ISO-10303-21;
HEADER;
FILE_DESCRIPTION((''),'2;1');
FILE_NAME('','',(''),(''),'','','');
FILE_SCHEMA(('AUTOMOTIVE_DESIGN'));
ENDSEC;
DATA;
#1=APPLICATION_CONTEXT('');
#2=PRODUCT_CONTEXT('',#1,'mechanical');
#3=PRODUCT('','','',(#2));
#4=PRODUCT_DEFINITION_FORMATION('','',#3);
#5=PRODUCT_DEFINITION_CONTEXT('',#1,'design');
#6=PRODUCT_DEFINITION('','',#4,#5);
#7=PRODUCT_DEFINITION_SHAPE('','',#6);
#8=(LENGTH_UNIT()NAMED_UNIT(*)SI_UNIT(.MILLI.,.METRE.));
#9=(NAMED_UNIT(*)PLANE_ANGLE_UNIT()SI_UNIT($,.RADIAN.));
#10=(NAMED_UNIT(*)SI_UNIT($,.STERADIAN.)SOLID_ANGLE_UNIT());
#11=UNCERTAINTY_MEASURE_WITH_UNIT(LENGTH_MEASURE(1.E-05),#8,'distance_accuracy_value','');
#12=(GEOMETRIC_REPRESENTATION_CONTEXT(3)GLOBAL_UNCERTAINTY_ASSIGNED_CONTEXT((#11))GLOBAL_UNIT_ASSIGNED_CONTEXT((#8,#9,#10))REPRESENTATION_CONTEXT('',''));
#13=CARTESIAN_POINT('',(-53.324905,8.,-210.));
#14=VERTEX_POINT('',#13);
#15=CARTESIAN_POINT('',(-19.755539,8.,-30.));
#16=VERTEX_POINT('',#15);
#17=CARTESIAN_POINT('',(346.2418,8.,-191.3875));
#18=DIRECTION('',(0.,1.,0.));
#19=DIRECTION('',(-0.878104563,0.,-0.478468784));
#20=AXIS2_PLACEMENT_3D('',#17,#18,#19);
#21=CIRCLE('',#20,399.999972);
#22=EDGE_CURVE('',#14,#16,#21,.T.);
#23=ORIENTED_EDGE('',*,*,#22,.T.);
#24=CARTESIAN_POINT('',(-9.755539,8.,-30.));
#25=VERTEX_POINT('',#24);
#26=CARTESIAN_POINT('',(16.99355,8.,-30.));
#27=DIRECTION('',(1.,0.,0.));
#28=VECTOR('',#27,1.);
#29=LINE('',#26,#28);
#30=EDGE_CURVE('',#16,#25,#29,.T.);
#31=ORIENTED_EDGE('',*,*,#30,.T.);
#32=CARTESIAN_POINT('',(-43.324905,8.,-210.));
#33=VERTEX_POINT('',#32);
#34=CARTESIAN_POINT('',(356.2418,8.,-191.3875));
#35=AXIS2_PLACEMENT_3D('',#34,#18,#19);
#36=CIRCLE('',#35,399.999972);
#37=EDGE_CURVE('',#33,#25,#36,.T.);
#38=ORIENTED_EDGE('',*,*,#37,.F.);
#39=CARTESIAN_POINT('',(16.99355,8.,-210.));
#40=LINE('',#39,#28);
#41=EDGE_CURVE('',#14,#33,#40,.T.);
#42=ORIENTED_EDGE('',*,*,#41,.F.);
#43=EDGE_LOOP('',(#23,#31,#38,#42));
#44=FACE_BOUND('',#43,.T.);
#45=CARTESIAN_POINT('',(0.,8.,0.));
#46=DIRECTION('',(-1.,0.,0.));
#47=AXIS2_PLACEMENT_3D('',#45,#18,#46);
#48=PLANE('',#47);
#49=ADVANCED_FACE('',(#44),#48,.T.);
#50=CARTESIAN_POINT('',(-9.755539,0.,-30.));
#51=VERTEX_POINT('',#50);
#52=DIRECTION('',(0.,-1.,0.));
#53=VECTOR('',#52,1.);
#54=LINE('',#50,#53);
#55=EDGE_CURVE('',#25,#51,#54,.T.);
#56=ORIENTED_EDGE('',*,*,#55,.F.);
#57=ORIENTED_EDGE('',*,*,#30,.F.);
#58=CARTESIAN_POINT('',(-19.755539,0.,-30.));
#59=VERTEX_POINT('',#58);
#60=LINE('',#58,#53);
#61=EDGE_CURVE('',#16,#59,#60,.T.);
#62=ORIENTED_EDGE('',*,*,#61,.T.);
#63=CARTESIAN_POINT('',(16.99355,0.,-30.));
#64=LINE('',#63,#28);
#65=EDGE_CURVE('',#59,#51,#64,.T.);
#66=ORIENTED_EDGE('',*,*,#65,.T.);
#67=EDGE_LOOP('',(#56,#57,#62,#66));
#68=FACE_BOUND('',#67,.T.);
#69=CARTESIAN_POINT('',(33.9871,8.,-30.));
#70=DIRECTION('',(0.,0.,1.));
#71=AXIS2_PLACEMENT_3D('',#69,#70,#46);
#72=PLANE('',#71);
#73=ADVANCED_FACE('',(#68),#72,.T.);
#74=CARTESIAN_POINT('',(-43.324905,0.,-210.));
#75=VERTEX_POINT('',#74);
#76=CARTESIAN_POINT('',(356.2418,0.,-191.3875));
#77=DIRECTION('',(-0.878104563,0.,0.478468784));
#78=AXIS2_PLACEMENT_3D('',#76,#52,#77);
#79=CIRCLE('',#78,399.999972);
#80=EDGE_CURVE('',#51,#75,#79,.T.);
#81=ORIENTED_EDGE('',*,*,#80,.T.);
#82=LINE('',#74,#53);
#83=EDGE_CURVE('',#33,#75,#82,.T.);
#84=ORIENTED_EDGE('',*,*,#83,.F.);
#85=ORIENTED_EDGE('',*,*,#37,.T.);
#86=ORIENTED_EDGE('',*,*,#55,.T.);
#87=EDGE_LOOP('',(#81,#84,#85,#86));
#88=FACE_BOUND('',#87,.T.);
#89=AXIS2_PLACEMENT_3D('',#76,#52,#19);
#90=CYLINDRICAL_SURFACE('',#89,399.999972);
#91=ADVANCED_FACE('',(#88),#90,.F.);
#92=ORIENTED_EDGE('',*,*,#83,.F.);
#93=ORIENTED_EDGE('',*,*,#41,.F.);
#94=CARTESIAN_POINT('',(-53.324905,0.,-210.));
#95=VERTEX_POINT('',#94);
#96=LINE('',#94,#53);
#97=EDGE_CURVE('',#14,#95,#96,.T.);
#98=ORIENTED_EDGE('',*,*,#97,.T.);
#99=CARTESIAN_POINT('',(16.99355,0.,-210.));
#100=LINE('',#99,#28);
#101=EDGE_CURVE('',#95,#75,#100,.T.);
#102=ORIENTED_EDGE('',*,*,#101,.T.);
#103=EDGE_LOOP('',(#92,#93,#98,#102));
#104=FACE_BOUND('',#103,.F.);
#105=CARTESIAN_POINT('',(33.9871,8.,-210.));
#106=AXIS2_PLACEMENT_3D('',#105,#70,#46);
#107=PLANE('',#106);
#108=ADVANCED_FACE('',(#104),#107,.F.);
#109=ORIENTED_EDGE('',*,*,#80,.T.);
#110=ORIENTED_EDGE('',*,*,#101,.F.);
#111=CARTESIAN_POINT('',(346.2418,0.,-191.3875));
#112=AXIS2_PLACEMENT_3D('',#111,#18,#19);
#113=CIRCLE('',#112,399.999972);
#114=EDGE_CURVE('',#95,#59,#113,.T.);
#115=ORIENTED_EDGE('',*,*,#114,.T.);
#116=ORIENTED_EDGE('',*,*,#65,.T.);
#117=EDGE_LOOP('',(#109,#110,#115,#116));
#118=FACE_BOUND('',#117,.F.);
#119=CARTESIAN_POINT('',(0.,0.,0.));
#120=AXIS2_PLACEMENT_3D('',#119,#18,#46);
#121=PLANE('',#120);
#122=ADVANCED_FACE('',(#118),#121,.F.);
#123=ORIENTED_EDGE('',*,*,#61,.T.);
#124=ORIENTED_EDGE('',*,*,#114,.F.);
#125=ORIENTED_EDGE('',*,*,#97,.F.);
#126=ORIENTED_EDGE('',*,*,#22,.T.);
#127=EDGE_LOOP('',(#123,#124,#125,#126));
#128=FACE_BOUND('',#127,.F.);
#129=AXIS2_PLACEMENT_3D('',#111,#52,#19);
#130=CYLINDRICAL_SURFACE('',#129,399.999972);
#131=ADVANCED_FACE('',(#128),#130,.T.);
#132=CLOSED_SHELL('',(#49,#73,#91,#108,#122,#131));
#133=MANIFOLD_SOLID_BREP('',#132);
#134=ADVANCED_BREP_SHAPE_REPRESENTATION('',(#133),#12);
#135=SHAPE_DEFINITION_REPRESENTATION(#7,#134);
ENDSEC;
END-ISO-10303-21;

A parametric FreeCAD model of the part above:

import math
import FreeCAD as App
import Part
import Sketcher
from FreeCAD import Vector


def edges_at(feature, points):
    """Names of the edges that pass closest to the given points."""
    edges = feature.Shape.Edges
    near = lambda p: min(range(len(edges)), key=lambda i: edges[i].distToShape(Part.Vertex(*p))[0])
    return sorted({f"Edge{near(p) + 1}" for p in points})


def add_polygon(sketch, points):
    """Adds a closed chain of lines whose ends are joined by coincident constraints."""
    first, n = sketch.GeometryCount, len(points)
    for a, b in zip(points, points[1:] + points[:1]):
        sketch.addGeometry(Part.LineSegment(App.Vector(*a, 0), App.Vector(*b, 0)), False)
    for i in range(n):
        sketch.addConstraint(Sketcher.Constraint("Coincident", first + i, 2, first + (i + 1) % n, 1))

doc = App.newDocument("Part")
body = doc.addObject("PartDesign::Body", "Body")

sketch1 = body.newObject("Sketcher::SketchObject", "Sketch")
sketch1.AttachmentSupport = (doc.getObject("XZ_Plane"), [""])
sketch1.MapMode = "FlatFace"
sketch1.addGeometry([
    Part.ArcOfCircle(Part.Circle(Vector(0, 0, 0), Vector(0, 0, 1), 5), math.radians(0), math.radians(180)),
    Part.ArcOfCircle(Part.Circle(Vector(356.2418, -191.3875, 0), Vector(0, 0, 1), 399.999972), math.radians(151.414556), math.radians(208.585444)),
    Part.ArcOfCircle(Part.Circle(Vector(0, -382.775, 0), Vector(0, 0, 1), 5), math.radians(180), math.radians(360)),
    Part.ArcOfCircle(Part.Circle(Vector(346.2418, -191.3875, 0), Vector(0, 0, 1), 399.999972), math.radians(151.414556), math.radians(208.585444)),
    Part.Circle(Vector(0, 0, 0), Vector(0, 0, 1), 1.5),
    Part.Circle(Vector(0, -382.775, 0), Vector(0, 0, 1), 1.5),
], False)
sketch1.addConstraint([
    Sketcher.Constraint("Coincident", 0, 1, 1, 1),
    Sketcher.Constraint("Coincident", 1, 2, 2, 2),
    Sketcher.Constraint("Coincident", 2, 1, 3, 2),
    Sketcher.Constraint("Coincident", 3, 1, 0, 2),
    Sketcher.Constraint("Coincident", 0, 3, -1, 1),
    Sketcher.Constraint("Coincident", 4, 3, -1, 1),
    Sketcher.Constraint("Coincident", 5, 3, 2, 3),
    Sketcher.Constraint("Equal", 0, 2),
    Sketcher.Constraint("Equal", 1, 3),
    Sketcher.Constraint("Equal", 4, 5),
    Sketcher.Constraint("Symmetric", 1, 2, 2, 1, -2),
    Sketcher.Constraint("PointOnObject", 0, 1, -1),
    Sketcher.Constraint("PointOnObject", 3, 1, -1),
    Sketcher.Constraint("Horizontal", 5, 3, 1, 2),
    Sketcher.Constraint("Diameter", 4, 3.0),
    Sketcher.Constraint("Radius", 0, 5.0),
    Sketcher.Constraint("Radius", 1, 400.0),
    Sketcher.Constraint("DistanceY", 2, 3, -1, 1, 382.775),
])
pad1 = body.newObject("PartDesign::Pad", "Pad")
pad1.Profile = sketch1
pad1.Length = 8
pad1.Reversed = True
doc.recompute()

fillet = body.newObject("PartDesign::Fillet", "Fillet")
fillet.Base = (pad1, edges_at(pad1, [
    (5, 4, -382.775),
    (-5, 4, -382.775),
    (-5, 4, 0),
    (5, 4, 0),
]))
fillet.Radius = 2

sketch2 = body.newObject("Sketcher::SketchObject", "Sketch001")
sketch2.AttachmentSupport = (doc.getObject("XZ_Plane"), [""])
sketch2.MapMode = "FlatFace"
sketch2.AttachmentOffset = App.Placement(Vector(0, 0, -8), App.Rotation())
add_polygon(sketch2, [(93.4733, -425.5197), (-111.727, -425.5197), (-111.727, 68.38), (93.4733, 68.38)])
add_polygon(sketch2, [(-64.7929, -30), (-64.7929, -210), (33.9871, -210), (33.9871, -30)])
sketch2.addConstraint([
    Sketcher.Constraint("Horizontal", 0),
    Sketcher.Constraint("Vertical", 1),
    Sketcher.Constraint("Horizontal", 2),
    Sketcher.Constraint("Vertical", 3),
    Sketcher.Constraint("Vertical", 4),
    Sketcher.Constraint("Horizontal", 5),
    Sketcher.Constraint("Vertical", 6),
    Sketcher.Constraint("Horizontal", 7),
    Sketcher.Constraint("DistanceY", 4, 2, 4, 1, 180.0),
    Sketcher.Constraint("DistanceY", 6, 2, -1, 1, 30.0),
    Sketcher.Constraint("DistanceX", 5, 1, 5, 2, 98.78),
    Sketcher.Constraint("DistanceY", -1, 1, 1, 2, 68.38),
    Sketcher.Constraint("DistanceX", 0, 2, 0, 1, 205.2003),
    Sketcher.Constraint("DistanceY", 1, 1, 1, 2, 493.8997),
    Sketcher.Constraint("DistanceX", 0, 2, -1, 1, 111.727),
    Sketcher.Constraint("DistanceX", 4, 2, -1, 1, 64.793),
])
pocket1 = body.newObject("PartDesign::Pocket", "Pocket")
pocket1.Profile = sketch2
pocket1.Length = 20
pocket1.Midplane = True

doc.recompute()
